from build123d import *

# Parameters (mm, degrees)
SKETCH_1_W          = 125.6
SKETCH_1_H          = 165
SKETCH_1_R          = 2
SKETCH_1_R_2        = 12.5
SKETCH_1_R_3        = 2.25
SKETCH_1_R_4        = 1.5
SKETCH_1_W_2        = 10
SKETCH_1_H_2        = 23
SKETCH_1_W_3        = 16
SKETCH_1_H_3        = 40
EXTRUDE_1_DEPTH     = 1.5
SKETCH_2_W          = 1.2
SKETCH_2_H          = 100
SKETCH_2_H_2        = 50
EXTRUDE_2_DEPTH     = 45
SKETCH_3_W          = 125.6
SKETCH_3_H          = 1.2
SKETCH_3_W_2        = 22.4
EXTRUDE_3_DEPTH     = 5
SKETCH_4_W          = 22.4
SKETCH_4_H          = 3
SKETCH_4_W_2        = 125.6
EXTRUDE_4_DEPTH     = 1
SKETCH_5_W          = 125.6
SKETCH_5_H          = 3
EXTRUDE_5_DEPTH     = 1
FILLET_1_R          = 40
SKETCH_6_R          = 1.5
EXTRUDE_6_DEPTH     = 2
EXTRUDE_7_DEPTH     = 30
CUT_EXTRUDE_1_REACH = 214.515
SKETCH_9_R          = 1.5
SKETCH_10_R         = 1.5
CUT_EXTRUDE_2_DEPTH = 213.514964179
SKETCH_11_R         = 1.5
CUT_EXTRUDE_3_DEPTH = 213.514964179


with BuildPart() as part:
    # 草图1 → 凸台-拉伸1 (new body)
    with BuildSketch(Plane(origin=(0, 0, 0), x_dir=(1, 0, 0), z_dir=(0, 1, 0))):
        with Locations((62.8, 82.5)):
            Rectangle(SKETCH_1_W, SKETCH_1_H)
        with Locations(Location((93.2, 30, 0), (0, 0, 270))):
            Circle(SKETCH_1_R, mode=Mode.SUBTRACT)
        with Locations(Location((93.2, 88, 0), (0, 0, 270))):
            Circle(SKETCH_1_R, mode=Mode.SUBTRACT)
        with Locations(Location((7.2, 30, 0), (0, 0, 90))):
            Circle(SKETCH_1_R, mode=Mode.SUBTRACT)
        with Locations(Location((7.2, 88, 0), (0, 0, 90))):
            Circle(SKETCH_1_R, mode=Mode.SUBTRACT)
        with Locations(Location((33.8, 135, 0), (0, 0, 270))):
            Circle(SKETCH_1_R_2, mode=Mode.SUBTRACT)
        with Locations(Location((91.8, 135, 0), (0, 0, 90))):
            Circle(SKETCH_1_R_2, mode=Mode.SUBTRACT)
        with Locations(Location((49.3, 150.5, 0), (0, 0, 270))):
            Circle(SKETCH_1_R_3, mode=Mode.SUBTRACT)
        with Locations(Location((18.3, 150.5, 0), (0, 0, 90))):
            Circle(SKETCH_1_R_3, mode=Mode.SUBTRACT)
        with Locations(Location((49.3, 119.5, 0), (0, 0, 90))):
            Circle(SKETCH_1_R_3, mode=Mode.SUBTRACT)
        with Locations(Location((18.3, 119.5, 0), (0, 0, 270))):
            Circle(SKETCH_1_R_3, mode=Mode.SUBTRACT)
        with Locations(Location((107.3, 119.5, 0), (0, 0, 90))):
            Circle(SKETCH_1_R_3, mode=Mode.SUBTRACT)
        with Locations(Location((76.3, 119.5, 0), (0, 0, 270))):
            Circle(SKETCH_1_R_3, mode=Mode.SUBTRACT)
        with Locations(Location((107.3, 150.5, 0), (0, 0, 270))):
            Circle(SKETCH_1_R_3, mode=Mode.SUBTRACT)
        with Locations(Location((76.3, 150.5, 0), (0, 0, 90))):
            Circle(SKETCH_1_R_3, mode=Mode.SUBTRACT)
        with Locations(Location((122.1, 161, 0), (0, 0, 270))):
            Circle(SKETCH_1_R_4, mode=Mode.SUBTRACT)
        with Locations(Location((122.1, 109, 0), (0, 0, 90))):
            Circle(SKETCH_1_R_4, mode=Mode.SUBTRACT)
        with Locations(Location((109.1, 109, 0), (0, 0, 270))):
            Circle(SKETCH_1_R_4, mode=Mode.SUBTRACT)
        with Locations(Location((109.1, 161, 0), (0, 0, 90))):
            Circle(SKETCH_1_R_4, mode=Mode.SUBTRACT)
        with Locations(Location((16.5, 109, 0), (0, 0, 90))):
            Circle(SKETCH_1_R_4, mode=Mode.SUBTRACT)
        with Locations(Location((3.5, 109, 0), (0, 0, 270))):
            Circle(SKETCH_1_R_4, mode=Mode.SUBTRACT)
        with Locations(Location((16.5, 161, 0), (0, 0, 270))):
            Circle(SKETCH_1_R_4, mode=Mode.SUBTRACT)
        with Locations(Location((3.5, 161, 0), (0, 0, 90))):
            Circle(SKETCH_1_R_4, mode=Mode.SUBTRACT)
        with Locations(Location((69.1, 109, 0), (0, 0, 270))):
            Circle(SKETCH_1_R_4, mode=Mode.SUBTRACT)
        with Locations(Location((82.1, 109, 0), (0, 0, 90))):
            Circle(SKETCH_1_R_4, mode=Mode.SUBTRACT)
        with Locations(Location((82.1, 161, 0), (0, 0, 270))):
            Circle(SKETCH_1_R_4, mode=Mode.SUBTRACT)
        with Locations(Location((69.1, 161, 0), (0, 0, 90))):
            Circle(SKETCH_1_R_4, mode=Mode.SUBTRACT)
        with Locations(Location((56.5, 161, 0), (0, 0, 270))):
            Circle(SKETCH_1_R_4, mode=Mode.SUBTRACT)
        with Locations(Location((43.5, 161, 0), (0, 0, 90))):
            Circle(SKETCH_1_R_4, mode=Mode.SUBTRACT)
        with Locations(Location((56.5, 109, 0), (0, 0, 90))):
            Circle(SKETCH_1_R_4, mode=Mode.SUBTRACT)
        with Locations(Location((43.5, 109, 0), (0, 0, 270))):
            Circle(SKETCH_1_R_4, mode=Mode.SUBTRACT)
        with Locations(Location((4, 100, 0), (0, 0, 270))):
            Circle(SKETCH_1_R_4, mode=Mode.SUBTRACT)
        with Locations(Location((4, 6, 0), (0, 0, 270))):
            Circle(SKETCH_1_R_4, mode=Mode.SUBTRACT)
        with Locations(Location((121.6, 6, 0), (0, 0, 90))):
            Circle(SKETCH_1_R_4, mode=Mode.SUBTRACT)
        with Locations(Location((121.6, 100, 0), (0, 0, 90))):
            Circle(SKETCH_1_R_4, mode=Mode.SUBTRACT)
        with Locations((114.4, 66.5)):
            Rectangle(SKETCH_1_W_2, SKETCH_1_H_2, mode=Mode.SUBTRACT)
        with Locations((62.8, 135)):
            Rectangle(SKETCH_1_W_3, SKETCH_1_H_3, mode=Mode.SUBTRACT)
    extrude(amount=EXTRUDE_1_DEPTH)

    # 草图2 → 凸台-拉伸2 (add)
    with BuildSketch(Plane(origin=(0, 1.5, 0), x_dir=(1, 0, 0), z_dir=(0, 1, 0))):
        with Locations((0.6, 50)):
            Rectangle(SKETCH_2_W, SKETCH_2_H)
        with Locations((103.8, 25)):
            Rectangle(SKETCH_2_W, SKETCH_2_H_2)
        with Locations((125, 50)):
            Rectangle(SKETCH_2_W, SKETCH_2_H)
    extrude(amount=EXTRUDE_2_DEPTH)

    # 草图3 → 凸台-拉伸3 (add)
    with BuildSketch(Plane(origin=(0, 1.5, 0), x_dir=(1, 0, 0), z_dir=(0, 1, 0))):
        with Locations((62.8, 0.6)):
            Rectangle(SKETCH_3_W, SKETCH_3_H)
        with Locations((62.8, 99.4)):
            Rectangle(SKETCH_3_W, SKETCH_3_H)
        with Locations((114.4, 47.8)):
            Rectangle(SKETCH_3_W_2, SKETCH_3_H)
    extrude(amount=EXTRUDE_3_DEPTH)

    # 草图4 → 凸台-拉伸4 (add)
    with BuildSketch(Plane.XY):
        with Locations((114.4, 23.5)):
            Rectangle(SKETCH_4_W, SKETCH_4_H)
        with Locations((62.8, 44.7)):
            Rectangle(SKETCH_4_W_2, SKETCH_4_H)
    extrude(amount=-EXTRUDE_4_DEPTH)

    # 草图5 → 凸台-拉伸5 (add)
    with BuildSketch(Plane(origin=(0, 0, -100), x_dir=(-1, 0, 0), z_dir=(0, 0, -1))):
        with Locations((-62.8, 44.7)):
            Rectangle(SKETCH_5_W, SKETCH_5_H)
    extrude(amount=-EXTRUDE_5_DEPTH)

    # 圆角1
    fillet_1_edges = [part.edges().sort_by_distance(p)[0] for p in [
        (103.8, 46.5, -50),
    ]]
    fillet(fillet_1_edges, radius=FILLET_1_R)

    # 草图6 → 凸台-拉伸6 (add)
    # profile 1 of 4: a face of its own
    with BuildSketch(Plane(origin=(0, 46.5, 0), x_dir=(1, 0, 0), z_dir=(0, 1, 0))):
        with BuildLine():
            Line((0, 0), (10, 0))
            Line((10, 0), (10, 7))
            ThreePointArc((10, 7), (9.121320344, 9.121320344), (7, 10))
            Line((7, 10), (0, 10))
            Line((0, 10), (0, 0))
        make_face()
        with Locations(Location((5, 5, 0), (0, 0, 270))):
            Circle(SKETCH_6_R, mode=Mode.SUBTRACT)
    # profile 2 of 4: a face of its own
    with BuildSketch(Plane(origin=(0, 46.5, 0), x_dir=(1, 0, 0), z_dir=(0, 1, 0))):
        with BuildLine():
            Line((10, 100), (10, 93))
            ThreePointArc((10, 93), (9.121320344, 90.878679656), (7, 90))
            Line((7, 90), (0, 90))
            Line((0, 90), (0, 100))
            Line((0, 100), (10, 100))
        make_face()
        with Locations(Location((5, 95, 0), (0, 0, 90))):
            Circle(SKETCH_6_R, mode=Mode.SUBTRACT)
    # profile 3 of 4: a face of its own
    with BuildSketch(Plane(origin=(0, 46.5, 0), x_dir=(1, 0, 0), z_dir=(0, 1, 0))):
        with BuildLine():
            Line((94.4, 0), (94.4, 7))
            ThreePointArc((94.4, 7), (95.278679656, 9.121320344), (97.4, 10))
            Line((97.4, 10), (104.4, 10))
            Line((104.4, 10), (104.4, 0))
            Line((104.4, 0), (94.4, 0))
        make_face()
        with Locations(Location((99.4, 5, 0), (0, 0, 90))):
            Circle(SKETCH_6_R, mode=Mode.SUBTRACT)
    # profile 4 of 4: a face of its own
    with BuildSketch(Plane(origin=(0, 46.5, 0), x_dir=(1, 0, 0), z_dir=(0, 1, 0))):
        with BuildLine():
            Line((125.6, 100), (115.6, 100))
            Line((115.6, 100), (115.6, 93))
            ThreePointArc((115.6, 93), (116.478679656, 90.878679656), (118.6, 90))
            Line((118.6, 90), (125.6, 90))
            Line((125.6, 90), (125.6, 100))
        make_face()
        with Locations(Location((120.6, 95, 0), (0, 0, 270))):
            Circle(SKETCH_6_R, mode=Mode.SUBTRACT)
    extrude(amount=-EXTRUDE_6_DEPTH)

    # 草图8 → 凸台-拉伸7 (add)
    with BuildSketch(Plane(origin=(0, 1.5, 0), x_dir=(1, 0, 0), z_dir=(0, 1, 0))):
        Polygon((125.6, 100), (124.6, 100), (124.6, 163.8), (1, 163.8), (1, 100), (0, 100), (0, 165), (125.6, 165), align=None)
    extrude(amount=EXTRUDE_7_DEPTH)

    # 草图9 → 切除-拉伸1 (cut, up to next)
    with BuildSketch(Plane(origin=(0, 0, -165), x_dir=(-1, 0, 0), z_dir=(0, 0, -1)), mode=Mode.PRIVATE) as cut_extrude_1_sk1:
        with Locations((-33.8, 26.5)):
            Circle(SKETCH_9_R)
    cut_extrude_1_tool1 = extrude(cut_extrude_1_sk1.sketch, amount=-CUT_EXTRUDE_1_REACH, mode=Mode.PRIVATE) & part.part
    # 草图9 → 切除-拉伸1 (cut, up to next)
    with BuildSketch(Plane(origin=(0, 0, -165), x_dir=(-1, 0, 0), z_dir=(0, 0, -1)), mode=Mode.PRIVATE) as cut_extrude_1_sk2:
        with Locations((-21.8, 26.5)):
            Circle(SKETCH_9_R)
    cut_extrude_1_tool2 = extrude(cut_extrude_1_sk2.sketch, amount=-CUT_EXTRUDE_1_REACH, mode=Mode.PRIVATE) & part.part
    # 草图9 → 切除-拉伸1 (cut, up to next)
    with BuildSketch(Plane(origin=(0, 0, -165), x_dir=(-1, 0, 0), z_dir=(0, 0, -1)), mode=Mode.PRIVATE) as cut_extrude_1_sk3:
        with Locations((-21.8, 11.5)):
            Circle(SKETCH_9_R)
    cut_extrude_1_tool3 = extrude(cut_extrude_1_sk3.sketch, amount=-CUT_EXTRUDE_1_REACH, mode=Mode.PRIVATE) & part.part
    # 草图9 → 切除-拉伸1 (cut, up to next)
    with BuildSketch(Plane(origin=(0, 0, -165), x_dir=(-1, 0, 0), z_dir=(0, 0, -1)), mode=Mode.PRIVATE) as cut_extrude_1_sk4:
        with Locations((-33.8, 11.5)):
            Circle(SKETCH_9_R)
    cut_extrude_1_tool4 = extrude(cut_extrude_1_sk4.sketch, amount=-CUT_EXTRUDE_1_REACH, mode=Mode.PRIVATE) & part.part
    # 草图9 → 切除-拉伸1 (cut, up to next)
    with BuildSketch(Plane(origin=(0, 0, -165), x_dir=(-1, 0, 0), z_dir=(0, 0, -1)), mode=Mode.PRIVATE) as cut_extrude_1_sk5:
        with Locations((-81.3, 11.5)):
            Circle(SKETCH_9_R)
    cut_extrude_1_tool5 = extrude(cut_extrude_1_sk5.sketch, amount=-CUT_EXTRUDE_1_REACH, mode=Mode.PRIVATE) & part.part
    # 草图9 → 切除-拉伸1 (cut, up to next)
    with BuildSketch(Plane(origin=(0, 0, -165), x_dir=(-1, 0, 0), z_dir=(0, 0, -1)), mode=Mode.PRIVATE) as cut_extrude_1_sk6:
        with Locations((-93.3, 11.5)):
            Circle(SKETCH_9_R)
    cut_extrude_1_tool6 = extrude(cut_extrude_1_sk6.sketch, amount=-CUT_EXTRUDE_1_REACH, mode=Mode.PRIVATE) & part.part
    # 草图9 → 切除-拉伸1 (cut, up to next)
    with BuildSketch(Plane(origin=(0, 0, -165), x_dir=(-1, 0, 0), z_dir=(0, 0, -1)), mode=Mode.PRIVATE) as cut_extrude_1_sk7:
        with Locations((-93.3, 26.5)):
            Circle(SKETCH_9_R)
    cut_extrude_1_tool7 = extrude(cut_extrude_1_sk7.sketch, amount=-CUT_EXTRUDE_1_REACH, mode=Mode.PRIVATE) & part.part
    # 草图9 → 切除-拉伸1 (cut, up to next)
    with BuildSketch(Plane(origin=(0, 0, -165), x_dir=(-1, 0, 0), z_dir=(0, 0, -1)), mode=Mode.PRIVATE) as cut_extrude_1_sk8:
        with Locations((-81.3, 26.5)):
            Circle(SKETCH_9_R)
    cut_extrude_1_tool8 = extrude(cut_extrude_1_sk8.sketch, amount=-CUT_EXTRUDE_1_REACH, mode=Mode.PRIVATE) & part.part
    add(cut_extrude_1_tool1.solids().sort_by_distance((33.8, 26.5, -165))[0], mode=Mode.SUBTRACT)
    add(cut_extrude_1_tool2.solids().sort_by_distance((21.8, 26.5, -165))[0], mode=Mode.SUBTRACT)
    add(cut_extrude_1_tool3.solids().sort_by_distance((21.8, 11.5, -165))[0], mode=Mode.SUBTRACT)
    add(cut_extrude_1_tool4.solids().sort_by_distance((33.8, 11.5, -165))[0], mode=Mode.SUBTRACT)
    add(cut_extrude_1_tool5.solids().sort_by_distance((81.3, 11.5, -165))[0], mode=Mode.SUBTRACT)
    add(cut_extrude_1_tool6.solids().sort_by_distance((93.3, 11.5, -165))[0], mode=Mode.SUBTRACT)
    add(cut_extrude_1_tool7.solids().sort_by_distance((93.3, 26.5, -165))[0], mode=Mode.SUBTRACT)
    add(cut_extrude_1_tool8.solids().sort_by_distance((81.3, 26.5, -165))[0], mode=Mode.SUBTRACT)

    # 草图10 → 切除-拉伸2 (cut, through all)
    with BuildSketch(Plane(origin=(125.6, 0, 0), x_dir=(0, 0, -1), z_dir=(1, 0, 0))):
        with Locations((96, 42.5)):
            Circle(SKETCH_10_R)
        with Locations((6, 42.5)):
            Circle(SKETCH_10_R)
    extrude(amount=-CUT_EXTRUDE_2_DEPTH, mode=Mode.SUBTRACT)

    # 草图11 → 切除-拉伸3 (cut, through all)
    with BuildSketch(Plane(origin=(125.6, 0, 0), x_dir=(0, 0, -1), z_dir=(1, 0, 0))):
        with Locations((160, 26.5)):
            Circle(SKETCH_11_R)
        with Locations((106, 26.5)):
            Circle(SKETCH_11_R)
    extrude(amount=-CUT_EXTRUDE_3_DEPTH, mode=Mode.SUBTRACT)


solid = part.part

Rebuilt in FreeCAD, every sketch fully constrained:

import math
import FreeCAD as App
import Part
import Sketcher

V = App.Vector


def edges_at(feature, points):
    """Names of the edges that pass closest to the given points."""
    edges = feature.Shape.Edges
    near = lambda p: min(range(len(edges)), key=lambda i: edges[i].distToShape(Part.Vertex(*p))[0])
    return sorted({f"Edge{near(p) + 1}" for p in points})


def add_polygon(sketch, points):
    """Adds a closed chain of lines whose ends are joined by coincident constraints."""
    first, n = sketch.GeometryCount, len(points)
    for a, b in zip(points, points[1:] + points[:1]):
        sketch.addGeometry(Part.LineSegment(App.Vector(*a, 0), App.Vector(*b, 0)), False)
    for i in range(n):
        sketch.addConstraint(Sketcher.Constraint("Coincident", first + i, 2, first + (i + 1) % n, 1))

doc = App.newDocument("Part")
params = doc.addObject("Spreadsheet::Sheet", "Params")
for row, (alias, value) in enumerate([
    ("sketch1_diameter", "3 mm"),
    ("sketch1_diameter2", "4 mm"),
    ("sketch1_diameter3", "25 mm"),
    ("sketch1_diameter4", "4.5 mm"),
    ("sketch1_width", "10 mm"),
    ("pad1_length", "1.5 mm"),
    ("sketch2_height", "100 mm"),
    ("sketch2_height2", "50 mm"),
    ("sketch2_width", "1.2 mm"),
    ("pad2_length", "45 mm"),
    ("sketch3_width", "125.6 mm"),
    ("sketch3_width2", "22.4 mm"),
    ("sketch3_height", "1.2 mm"),
    ("pad3_length", "5 mm"),
    ("sketch4_height", "3 mm"),
    ("sketch4_width", "22.4 mm"),
    ("sketch4_width2", "125.6 mm"),
    ("pad4_length", "1 mm"),
    ("sketch5_height", "3 mm"),
    ("sketch5_width", "125.6 mm"),
    ("pad5_length", "1 mm"),
    ("fillet_radius", "40 mm"),
    ("sketch6_diameter", "3 mm"),
    ("sketch6_radius", "3 mm"),
    ("sketch6_width", "10 mm"),
    ("pad6_length", "2 mm"),
    ("sketch7_width", "1 mm"),
    ("sketch7_height", "65 mm"),
    ("sketch7_width2", "125.6 mm"),
    ("sketch7_height2", "63.8 mm"),
    ("pad7_length", "30 mm"),
    ("sketch8_diameter", "3 mm"),
    ("sketch9_diameter", "3 mm"),
    ("sketch10_diameter", "3 mm"),
    ("sketch11_diameter", "3 mm"),
    ("sketch12_diameter", "3 mm"),
    ("sketch13_diameter", "3 mm"),
    ("sketch14_diameter", "3 mm"),
    ("sketch15_diameter", "3 mm"),
    ("sketch16_diameter", "3 mm"),
    ("sketch17_diameter", "3 mm"),
], start=1):
    params.set(f"A{row}", alias)
    params.set(f"B{row}", "=" + value)
    params.setAlias(f"B{row}", alias)

body = doc.addObject("PartDesign::Body", "Body")

sketch1 = body.newObject("Sketcher::SketchObject", "Sketch")
sketch1.AttachmentSupport = (doc.getObject("XZ_Plane"), [""])
sketch1.MapMode = "FlatFace"
add_polygon(sketch1, [(0, -165), (0, 0), (125.6, 0), (125.6, -165)])
sketch1.addGeometry(Part.Circle(V(4, -6, 0), V(0, 0, 1), 1.5), False)
sketch1.addGeometry(Part.Circle(V(7.2, -30, 0), V(0, 0, 1), 2), False)
sketch1.addGeometry(Part.Circle(V(121.6, -6, 0), V(0, 0, 1), 1.5), False)
sketch1.addGeometry(Part.Circle(V(93.2, -30, 0), V(0, 0, 1), 2), False)
add_polygon(sketch1, [(119.4, -55), (109.4, -55), (109.4, -78), (119.4, -78)])
sketch1.addGeometry(Part.Circle(V(7.2, -88, 0), V(0, 0, 1), 2), False)
sketch1.addGeometry(Part.Circle(V(4, -100, 0), V(0, 0, 1), 1.5), False)
sketch1.addGeometry(Part.Circle(V(3.5, -109, 0), V(0, 0, 1), 1.5), False)
sketch1.addGeometry(Part.Circle(V(16.5, -109, 0), V(0, 0, 1), 1.5), False)
sketch1.addGeometry(Part.Circle(V(18.3, -119.5, 0), V(0, 0, 1), 2.2), False)
sketch1.addGeometry(Part.Circle(V(43.5, -109, 0), V(0, 0, 1), 1.5), False)
sketch1.addGeometry(Part.Circle(V(56.5, -109, 0), V(0, 0, 1), 1.5), False)
sketch1.addGeometry(Part.Circle(V(49.3, -119.5, 0), V(0, 0, 1), 2.2), False)
sketch1.addGeometry(Part.Circle(V(3.5, -161, 0), V(0, 0, 1), 1.5), False)
sketch1.addGeometry(Part.Circle(V(16.5, -161, 0), V(0, 0, 1), 1.5), False)
sketch1.addGeometry(Part.Circle(V(18.3, -150.5, 0), V(0, 0, 1), 2.2), False)
sketch1.addGeometry(Part.Circle(V(33.8, -135, 0), V(0, 0, 1), 12.5), False)
add_polygon(sketch1, [(70.8, -115), (54.8, -115), (54.8, -155), (70.8, -155)])
sketch1.addGeometry(Part.Circle(V(43.5, -161, 0), V(0, 0, 1), 1.5), False)
sketch1.addGeometry(Part.Circle(V(49.3, -150.5, 0), V(0, 0, 1), 2.2), False)
sketch1.addGeometry(Part.Circle(V(56.5, -161, 0), V(0, 0, 1), 1.5), False)
sketch1.addGeometry(Part.Circle(V(69.1, -109, 0), V(0, 0, 1), 1.5), False)
sketch1.addGeometry(Part.Circle(V(76.3, -119.5, 0), V(0, 0, 1), 2.2), False)
sketch1.addGeometry(Part.Circle(V(82.1, -109, 0), V(0, 0, 1), 1.5), False)
sketch1.addGeometry(Part.Circle(V(93.2, -88, 0), V(0, 0, 1), 2), False)
sketch1.addGeometry(Part.Circle(V(121.6, -100, 0), V(0, 0, 1), 1.5), False)
sketch1.addGeometry(Part.Circle(V(107.3, -119.5, 0), V(0, 0, 1), 2.2), False)
sketch1.addGeometry(Part.Circle(V(109.1, -109, 0), V(0, 0, 1), 1.5), False)
sketch1.addGeometry(Part.Circle(V(122.1, -109, 0), V(0, 0, 1), 1.5), False)
sketch1.addGeometry(Part.Circle(V(91.8, -135, 0), V(0, 0, 1), 12.5), False)
sketch1.addGeometry(Part.Circle(V(76.3, -150.5, 0), V(0, 0, 1), 2.2), False)
sketch1.addGeometry(Part.Circle(V(69.1, -161, 0), V(0, 0, 1), 1.5), False)
sketch1.addGeometry(Part.Circle(V(82.1, -161, 0), V(0, 0, 1), 1.5), False)
sketch1.addGeometry(Part.Circle(V(107.3, -150.5, 0), V(0, 0, 1), 2.2), False)
sketch1.addGeometry(Part.Circle(V(109.1, -161, 0), V(0, 0, 1), 1.5), False)
sketch1.addGeometry(Part.Circle(V(122.1, -161, 0), V(0, 0, 1), 1.5), False)
sketch1.addConstraint(Sketcher.Constraint("Vertical", 0))
sketch1.addConstraint(Sketcher.Constraint("Horizontal", 1))
sketch1.addConstraint(Sketcher.Constraint("Vertical", 2))
sketch1.addConstraint(Sketcher.Constraint("Horizontal", 3))
sketch1.addConstraint(Sketcher.Constraint("Horizontal", 8))
sketch1.addConstraint(Sketcher.Constraint("Vertical", 9))
sketch1.addConstraint(Sketcher.Constraint("Horizontal", 10))
sketch1.addConstraint(Sketcher.Constraint("Vertical", 11))
sketch1.addConstraint(Sketcher.Constraint("Horizontal", 24))
sketch1.addConstraint(Sketcher.Constraint("Vertical", 25))
sketch1.addConstraint(Sketcher.Constraint("Horizontal", 26))
sketch1.addConstraint(Sketcher.Constraint("Vertical", 27))
sketch1.addConstraint(Sketcher.Constraint("Coincident", 0, 2, -1, 1))
sketch1.addConstraint(Sketcher.Constraint("Equal", 4, 6))
sketch1.addConstraint(Sketcher.Constraint("Equal", 5, 7))
sketch1.addConstraint(Sketcher.Constraint("Equal", 7, 12))
sketch1.addConstraint(Sketcher.Constraint("Equal", 6, 13))
sketch1.addConstraint(Sketcher.Constraint("Equal", 13, 14))
sketch1.addConstraint(Sketcher.Constraint("Equal", 14, 15))
sketch1.addConstraint(Sketcher.Constraint("Equal", 15, 17))
sketch1.addConstraint(Sketcher.Constraint("Equal", 17, 18))
sketch1.addConstraint(Sketcher.Constraint("Equal", 16, 19))
sketch1.addConstraint(Sketcher.Constraint("Equal", 18, 20))
sketch1.addConstraint(Sketcher.Constraint("Equal", 20, 21))
sketch1.addConstraint(Sketcher.Constraint("Equal", 19, 22))
sketch1.addConstraint(Sketcher.Constraint("Equal", 21, 28))
sketch1.addConstraint(Sketcher.Constraint("Equal", 22, 29))
sketch1.addConstraint(Sketcher.Constraint("Equal", 28, 30))
sketch1.addConstraint(Sketcher.Constraint("Equal", 30, 31))
sketch1.addConstraint(Sketcher.Constraint("Equal", 29, 32))
sketch1.addConstraint(Sketcher.Constraint("Equal", 31, 33))
sketch1.addConstraint(Sketcher.Constraint("Equal", 12, 34))
sketch1.addConstraint(Sketcher.Constraint("Equal", 33, 35))
sketch1.addConstraint(Sketcher.Constraint("Equal", 32, 36))
sketch1.addConstraint(Sketcher.Constraint("Equal", 35, 37))
sketch1.addConstraint(Sketcher.Constraint("Equal", 37, 38))
sketch1.addConstraint(Sketcher.Constraint("Equal", 23, 39))
sketch1.addConstraint(Sketcher.Constraint("Equal", 36, 40))
sketch1.addConstraint(Sketcher.Constraint("Equal", 38, 41))
sketch1.addConstraint(Sketcher.Constraint("Equal", 41, 42))
sketch1.addConstraint(Sketcher.Constraint("Equal", 40, 43))
sketch1.addConstraint(Sketcher.Constraint("Equal", 42, 44))
sketch1.addConstraint(Sketcher.Constraint("Equal", 44, 45))
sketch1.addConstraint(Sketcher.Constraint("Horizontal", 4, 3, 6, 3))
sketch1.addConstraint(Sketcher.Constraint("Horizontal", 5, 3, 7, 3))
sketch1.addConstraint(Sketcher.Constraint("Horizontal", 14, 3, 15, 3))
sketch1.addConstraint(Sketcher.Constraint("Horizontal", 15, 3, 17, 3))
sketch1.addConstraint(Sketcher.Constraint("Horizontal", 17, 3, 18, 3))
sketch1.addConstraint(Sketcher.Constraint("Horizontal", 16, 3, 19, 3))
sketch1.addConstraint(Sketcher.Constraint("Horizontal", 20, 3, 21, 3))
sketch1.addConstraint(Sketcher.Constraint("Horizontal", 21, 3, 28, 3))
sketch1.addConstraint(Sketcher.Constraint("Horizontal", 22, 3, 29, 3))
sketch1.addConstraint(Sketcher.Constraint("Horizontal", 28, 3, 30, 3))
sketch1.addConstraint(Sketcher.Constraint("Horizontal", 18, 3, 31, 3))
sketch1.addConstraint(Sketcher.Constraint("Horizontal", 19, 3, 32, 3))
sketch1.addConstraint(Sketcher.Constraint("Horizontal", 31, 3, 33, 3))
sketch1.addConstraint(Sketcher.Constraint("Horizontal", 12, 3, 34, 3))
sketch1.addConstraint(Sketcher.Constraint("Horizontal", 13, 3, 35, 3))
sketch1.addConstraint(Sketcher.Constraint("Horizontal", 32, 3, 36, 3))
sketch1.addConstraint(Sketcher.Constraint("Horizontal", 33, 3, 37, 3))
sketch1.addConstraint(Sketcher.Constraint("Horizontal", 37, 3, 38, 3))
sketch1.addConstraint(Sketcher.Constraint("Horizontal", 23, 3, 39, 3))
sketch1.addConstraint(Sketcher.Constraint("Horizontal", 29, 3, 40, 3))
sketch1.addConstraint(Sketcher.Constraint("Horizontal", 30, 3, 41, 3))
sketch1.addConstraint(Sketcher.Constraint("Horizontal", 41, 3, 42, 3))
sketch1.addConstraint(Sketcher.Constraint("Horizontal", 40, 3, 43, 3))
sketch1.addConstraint(Sketcher.Constraint("Horizontal", 42, 3, 44, 3))
sketch1.addConstraint(Sketcher.Constraint("Horizontal", 44, 3, 45, 3))
sketch1.addConstraint(Sketcher.Constraint("Vertical", 5, 3, 12, 3))
sketch1.addConstraint(Sketcher.Constraint("Vertical", 4, 3, 13, 3))
sketch1.addConstraint(Sketcher.Constraint("Vertical", 14, 3, 20, 3))
sketch1.addConstraint(Sketcher.Constraint("Vertical", 15, 3, 21, 3))
sketch1.addConstraint(Sketcher.Constraint("Vertical", 16, 3, 22, 3))
sketch1.addConstraint(Sketcher.Constraint("Vertical", 17, 3, 28, 3))
sketch1.addConstraint(Sketcher.Constraint("Vertical", 19, 3, 29, 3))
sketch1.addConstraint(Sketcher.Constraint("Vertical", 18, 3, 30, 3))
sketch1.addConstraint(Sketcher.Constraint("Vertical", 7, 3, 34, 3))
sketch1.addConstraint(Sketcher.Constraint("Vertical", 6, 3, 35, 3))
sketch1.addConstraint(Sketcher.Constraint("Vertical", 32, 3, 40, 3))
sketch1.addConstraint(Sketcher.Constraint("Vertical", 31, 3, 41, 3))
sketch1.addConstraint(Sketcher.Constraint("Vertical", 33, 3, 42, 3))
sketch1.addConstraint(Sketcher.Constraint("Vertical", 36, 3, 43, 3))
sketch1.addConstraint(Sketcher.Constraint("Vertical", 37, 3, 44, 3))
sketch1.addConstraint(Sketcher.Constraint("Vertical", 38, 3, 45, 3))
sketch1.addConstraint(Sketcher.Constraint("Diameter", 4, 3.0))
sketch1.addConstraint(Sketcher.Constraint("Diameter", 5, 4.0))
sketch1.addConstraint(Sketcher.Constraint("Diameter", 23, 25.0))
sketch1.addConstraint(Sketcher.Constraint("Diameter", 16, 4.5))
sketch1.addConstraint(Sketcher.Constraint("DistanceX", 8, 2, 8, 1, 10.0))
sketch1.addConstraint(Sketcher.Constraint("DistanceX", 24, 2, 24, 1, 16.0))
sketch1.addConstraint(Sketcher.Constraint("DistanceY", 0, 1, 0, 2, 165.0))
sketch1.addConstraint(Sketcher.Constraint("DistanceY", 9, 2, 9, 1, 23.0))
sketch1.addConstraint(Sketcher.Constraint("DistanceY", 25, 2, 25, 1, 40.0))
sketch1.addConstraint(Sketcher.Constraint("DistanceX", 1, 1, 1, 2, 125.6))
sketch1.addConstraint(Sketcher.Constraint("DistanceX", -1, 1, 4, 3, 4.0))
sketch1.addConstraint(Sketcher.Constraint("DistanceY", 4, 3, -1, 1, 6.0))
sketch1.addConstraint(Sketcher.Constraint("DistanceY", 5, 3, -1, 1, 30.0))
sketch1.addConstraint(Sketcher.Constraint("DistanceY", 12, 3, -1, 1, 88.0))
sketch1.addConstraint(Sketcher.Constraint("DistanceY", 13, 3, -1, 1, 100.0))
sketch1.addConstraint(Sketcher.Constraint("DistanceY", 14, 3, -1, 1, 109.0))
sketch1.addConstraint(Sketcher.Constraint("DistanceY", 20, 3, -1, 1, 161.0))
sketch1.addConstraint(Sketcher.Constraint("DistanceY", 23, 3, -1, 1, 135.0))
sketch1.addConstraint(Sketcher.Constraint("DistanceY", 8, 2, -1, 1, 55.0))
sketch1.addConstraint(Sketcher.Constraint("DistanceY", 24, 2, -1, 1, 115.0))
sketch1.addConstraint(Sketcher.Constraint("DistanceX", 5, 3, 7, 3, 86.0))
sketch1.addConstraint(Sketcher.Constraint("DistanceX", 14, 3, 15, 3, 13.0))
sketch1.addConstraint(Sketcher.Constraint("DistanceX", 15, 3, 17, 3, 27.0))
sketch1.addConstraint(Sketcher.Constraint("DistanceX", 17, 3, 18, 3, 13.0))
sketch1.addConstraint(Sketcher.Constraint("DistanceX", 16, 3, 19, 3, 31.0))
sketch1.addConstraint(Sketcher.Constraint("DistanceY", 22, 3, 16, 3, 31.0))
sketch1.addConstraint(Sketcher.Constraint("DistanceX", 19, 3, 32, 3, 27.0))
sketch1.addConstraint(Sketcher.Constraint("DistanceX", 31, 3, 33, 3, 13.0))
sketch1.addConstraint(Sketcher.Constraint("DistanceX", 32, 3, 36, 3, 31.0))
sketch1.addConstraint(Sketcher.Constraint("DistanceX", 33, 3, 37, 3, 27.0))
sketch1.addConstraint(Sketcher.Constraint("DistanceX", 37, 3, 38, 3, 13.0))
sketch1.addConstraint(Sketcher.Constraint("DistanceX", 6, 3, 1, 2, 4.0))
sketch1.addConstraint(Sketcher.Constraint("DistanceX", -1, 1, 5, 3, 7.2))
sketch1.addConstraint(Sketcher.Constraint("DistanceX", -1, 1, 14, 3, 3.5))
sketch1.addConstraint(Sketcher.Constraint("DistanceX", -1, 1, 16, 3, 18.3))
sketch1.addConstraint(Sketcher.Constraint("DistanceY", 16, 3, -1, 1, 119.5))
sketch1.addConstraint(Sketcher.Constraint("DistanceX", -1, 1, 23, 3, 33.8))
sketch1.addConstraint(Sketcher.Constraint("DistanceX", -1, 1, 31, 3, 69.1))
sketch1.addConstraint(Sketcher.Constraint("DistanceX", -1, 1, 39, 3, 91.8))
sketch1.addConstraint(Sketcher.Constraint("DistanceX", -1, 1, 8, 2, 109.4))
sketch1.addConstraint(Sketcher.Constraint("DistanceX", -1, 1, 24, 2, 54.8))
sketch1.setExpression("Constraints[96]", "Params.sketch1_diameter")
sketch1.setExpression("Constraints[97]", "Params.sketch1_diameter2")
sketch1.setExpression("Constraints[98]", "Params.sketch1_diameter3")
sketch1.setExpression("Constraints[99]", "Params.sketch1_diameter4")
sketch1.setExpression("Constraints[100]", "Params.sketch1_width")
pad1 = body.newObject("PartDesign::Pad", "Pad")
pad1.Profile = sketch1
pad1.setExpression("Length", "Params.pad1_length")
pad1.Reversed = True

sketch2 = body.newObject("Sketcher::SketchObject", "Sketch001")
sketch2.AttachmentSupport = (doc.getObject("XZ_Plane"), [""])
sketch2.MapMode = "FlatFace"
sketch2.AttachmentOffset = App.Placement(V(0, 0, -1.5), App.Rotation())
add_polygon(sketch2, [(0, -100), (0, 0), (1.2, 0), (1.2, -100)])
add_polygon(sketch2, [(103.2, -50), (103.2, 0), (104.4, 0), (104.4, -50)])
add_polygon(sketch2, [(124.4, -100), (124.4, 0), (125.6, 0), (125.6, -100)])
sketch2.addConstraint(Sketcher.Constraint("Vertical", 0))
sketch2.addConstraint(Sketcher.Constraint("Horizontal", 1))
sketch2.addConstraint(Sketcher.Constraint("Vertical", 2))
sketch2.addConstraint(Sketcher.Constraint("Horizontal", 3))
sketch2.addConstraint(Sketcher.Constraint("Vertical", 4))
sketch2.addConstraint(Sketcher.Constraint("Horizontal", 5))
sketch2.addConstraint(Sketcher.Constraint("Vertical", 6))
sketch2.addConstraint(Sketcher.Constraint("Horizontal", 7))
sketch2.addConstraint(Sketcher.Constraint("Vertical", 8))
sketch2.addConstraint(Sketcher.Constraint("Horizontal", 9))
sketch2.addConstraint(Sketcher.Constraint("Vertical", 10))
sketch2.addConstraint(Sketcher.Constraint("Horizontal", 11))
sketch2.addConstraint(Sketcher.Constraint("Coincident", 0, 2, -1, 1))
sketch2.addConstraint(Sketcher.Constraint("PointOnObject", 4, 2, -1))
sketch2.addConstraint(Sketcher.Constraint("PointOnObject", 8, 2, -1))
sketch2.addConstraint(Sketcher.Constraint("Horizontal", 3, 2, 10, 2))
sketch2.addConstraint(Sketcher.Constraint("Equal", 3, 5))
sketch2.addConstraint(Sketcher.Constraint("Equal", 7, 9))
sketch2.addConstraint(Sketcher.Constraint("DistanceY", 0, 1, 0, 2, 100.0))
sketch2.addConstraint(Sketcher.Constraint("DistanceY", 4, 1, 4, 2, 50.0))
sketch2.addConstraint(Sketcher.Constraint("DistanceX", 1, 1, 1, 2, 1.2))
sketch2.addConstraint(Sketcher.Constraint("DistanceX", 1, 2, 4, 2, 102.0))
sketch2.addConstraint(Sketcher.Constraint("DistanceX", 5, 2, 8, 2, 20.0))
sketch2.setExpression("Constraints[30]", "Params.sketch2_height")
sketch2.setExpression("Constraints[31]", "Params.sketch2_height2")
sketch2.setExpression("Constraints[32]", "Params.sketch2_width")
pad2 = body.newObject("PartDesign::Pad", "Pad001")
pad2.Profile = sketch2
pad2.setExpression("Length", "Params.pad2_length")
pad2.Reversed = True

sketch3 = body.newObject("Sketcher::SketchObject", "Sketch002")
sketch3.AttachmentSupport = (doc.getObject("XZ_Plane"), [""])
sketch3.MapMode = "FlatFace"
sketch3.AttachmentOffset = App.Placement(V(0, 0, -1.5), App.Rotation())
add_polygon(sketch3, [(0, -1.2), (0, 0), (125.6, 0), (125.6, -1.2)])
add_polygon(sketch3, [(0, -100), (0, -98.8), (125.6, -98.8), (125.6, -100)])
add_polygon(sketch3, [(103.2, -48.4), (103.2, -47.2), (125.6, -47.2), (125.6, -48.4)])
sketch3.addConstraint(Sketcher.Constraint("Vertical", 0))
sketch3.addConstraint(Sketcher.Constraint("Horizontal", 1))
sketch3.addConstraint(Sketcher.Constraint("Vertical", 2))
sketch3.addConstraint(Sketcher.Constraint("Horizontal", 3))
sketch3.addConstraint(Sketcher.Constraint("Vertical", 4))
sketch3.addConstraint(Sketcher.Constraint("Horizontal", 5))
sketch3.addConstraint(Sketcher.Constraint("Vertical", 6))
sketch3.addConstraint(Sketcher.Constraint("Horizontal", 7))
sketch3.addConstraint(Sketcher.Constraint("Vertical", 8))
sketch3.addConstraint(Sketcher.Constraint("Horizontal", 9))
sketch3.addConstraint(Sketcher.Constraint("Vertical", 10))
sketch3.addConstraint(Sketcher.Constraint("Horizontal", 11))
sketch3.addConstraint(Sketcher.Constraint("Coincident", 0, 2, -1, 1))
sketch3.addConstraint(Sketcher.Constraint("PointOnObject", 4, 2, -2))
sketch3.addConstraint(Sketcher.Constraint("Vertical", 2, 2, 5, 2))
sketch3.addConstraint(Sketcher.Constraint("Vertical", 6, 2, 9, 2))
sketch3.addConstraint(Sketcher.Constraint("Equal", 2, 4))
sketch3.addConstraint(Sketcher.Constraint("Equal", 6, 8))
sketch3.addConstraint(Sketcher.Constraint("DistanceX", 1, 1, 1, 2, 125.6))
sketch3.addConstraint(Sketcher.Constraint("DistanceX", 9, 1, 9, 2, 22.4))
sketch3.addConstraint(Sketcher.Constraint("DistanceY", 0, 1, 0, 2, 1.2))
sketch3.addConstraint(Sketcher.Constraint("DistanceY", 6, 2, -1, 1, 100.0))
sketch3.addConstraint(Sketcher.Constraint("DistanceY", 8, 2, 2, 2, 46.0))
sketch3.setExpression("Constraints[30]", "Params.sketch3_width")
sketch3.setExpression("Constraints[31]", "Params.sketch3_width2")
sketch3.setExpression("Constraints[32]", "Params.sketch3_height")
pad3 = body.newObject("PartDesign::Pad", "Pad002")
pad3.Profile = sketch3
pad3.setExpression("Length", "Params.pad3_length")
pad3.Reversed = True

sketch4 = body.newObject("Sketcher::SketchObject", "Sketch003")
sketch4.AttachmentSupport = (doc.getObject("XY_Plane"), [""])
sketch4.MapMode = "FlatFace"
add_polygon(sketch4, [(103.2, 25), (103.2, 22), (125.6, 22), (125.6, 25)])
add_polygon(sketch4, [(0, 46.2), (0, 43.2), (125.6, 43.2), (125.6, 46.2)])
sketch4.addConstraint(Sketcher.Constraint("Vertical", 0))
sketch4.addConstraint(Sketcher.Constraint("Horizontal", 1))
sketch4.addConstraint(Sketcher.Constraint("Vertical", 2))
sketch4.addConstraint(Sketcher.Constraint("Horizontal", 3))
sketch4.addConstraint(Sketcher.Constraint("Vertical", 4))
sketch4.addConstraint(Sketcher.Constraint("Horizontal", 5))
sketch4.addConstraint(Sketcher.Constraint("Vertical", 6))
sketch4.addConstraint(Sketcher.Constraint("Horizontal", 7))
sketch4.addConstraint(Sketcher.Constraint("PointOnObject", 4, 2, -2))
sketch4.addConstraint(Sketcher.Constraint("Vertical", 2, 2, 5, 2))
sketch4.addConstraint(Sketcher.Constraint("Equal", 2, 4))
sketch4.addConstraint(Sketcher.Constraint("DistanceY", 0, 2, 0, 1, 3.0))
sketch4.addConstraint(Sketcher.Constraint("DistanceX", 1, 1, 1, 2, 22.4))
sketch4.addConstraint(Sketcher.Constraint("DistanceX", 5, 1, 5, 2, 125.6))
sketch4.addConstraint(Sketcher.Constraint("DistanceY", -1, 1, 0, 2, 22.0))
sketch4.addConstraint(Sketcher.Constraint("DistanceY", -1, 1, 4, 2, 43.2))
sketch4.setExpression("Constraints[19]", "Params.sketch4_height")
sketch4.setExpression("Constraints[20]", "Params.sketch4_width")
sketch4.setExpression("Constraints[21]", "Params.sketch4_width2")
pad4 = body.newObject("PartDesign::Pad", "Pad003")
pad4.Profile = sketch4
pad4.setExpression("Length", "Params.pad4_length")
pad4.Reversed = True

sketch5 = body.newObject("Sketcher::SketchObject", "Sketch004")
sketch5.AttachmentSupport = (doc.getObject("XY_Plane"), [""])
sketch5.MapMode = "FlatFace"
sketch5.AttachmentOffset = App.Placement(V(0, 0, -100), App.Rotation())
add_polygon(sketch5, [(125.6, 46.2), (125.6, 43.2), (0, 43.2), (0, 46.2)])
sketch5.addConstraint(Sketcher.Constraint("Vertical", 0))
sketch5.addConstraint(Sketcher.Constraint("Horizontal", 1))
sketch5.addConstraint(Sketcher.Constraint("Vertical", 2))
sketch5.addConstraint(Sketcher.Constraint("Horizontal", 3))
sketch5.addConstraint(Sketcher.Constraint("PointOnObject", 1, 2, -2))
sketch5.addConstraint(Sketcher.Constraint("DistanceY", 0, 2, 0, 1, 3.0))
sketch5.addConstraint(Sketcher.Constraint("DistanceX", 1, 2, 1, 1, 125.6))
sketch5.addConstraint(Sketcher.Constraint("DistanceY", -1, 1, 0, 2, 43.2))
sketch5.setExpression("Constraints[9]", "Params.sketch5_height")
sketch5.setExpression("Constraints[10]", "Params.sketch5_width")
pad5 = body.newObject("PartDesign::Pad", "Pad004")
pad5.Profile = sketch5
pad5.setExpression("Length", "Params.pad5_length")
doc.recompute()

fillet = body.newObject("PartDesign::Fillet", "Fillet")
fillet.Base = (pad5, edges_at(pad5, [(103.8, 46.5, -50)]))
fillet.setExpression("Radius", "Params.fillet_radius")

sketch6 = body.newObject("Sketcher::SketchObject", "Sketch005")
sketch6.AttachmentSupport = (doc.getObject("XZ_Plane"), [""])
sketch6.MapMode = "FlatFace"
sketch6.AttachmentOffset = App.Placement(V(0, 0, -46.5), App.Rotation())
sketch6.addGeometry(Part.LineSegment(V(0, 0, 0), V(10, 0, 0)), False)
sketch6.addGeometry(Part.LineSegment(V(10, 0, 0), V(10, -7, 0)), False)
sketch6.addGeometry(Part.ArcOfCircle(Part.Circle(V(7, -7, 0), V(0, 0, 1), 3), math.radians(-90), math.radians(0)), False)
sketch6.addGeometry(Part.LineSegment(V(7, -10, 0), V(0, -10, 0)), False)
sketch6.addGeometry(Part.LineSegment(V(0, -10, 0), V(0, 0, 0)), False)
sketch6.addGeometry(Part.Circle(V(5, -5, 0), V(0, 0, 1), 1.5), False)
sketch6.addGeometry(Part.LineSegment(V(10, -93, 0), V(10, -100, 0)), False)
sketch6.addGeometry(Part.LineSegment(V(10, -100, 0), V(0, -100, 0)), False)
sketch6.addGeometry(Part.LineSegment(V(0, -100, 0), V(0, -90, 0)), False)
sketch6.addGeometry(Part.LineSegment(V(0, -90, 0), V(7, -90, 0)), False)
sketch6.addGeometry(Part.ArcOfCircle(Part.Circle(V(7, -93, 0), V(0, 0, 1), 3), math.radians(0), math.radians(90)), False)
sketch6.addGeometry(Part.Circle(V(5, -95, 0), V(0, 0, 1), 1.5), False)
sketch6.addGeometry(Part.LineSegment(V(94.4, -7, 0), V(94.4, 0, 0)), False)
sketch6.addGeometry(Part.LineSegment(V(94.4, 0, 0), V(104.4, 0, 0)), False)
sketch6.addGeometry(Part.LineSegment(V(104.4, 0, 0), V(104.4, -10, 0)), False)
sketch6.addGeometry(Part.LineSegment(V(104.4, -10, 0), V(97.4, -10, 0)), False)
sketch6.addGeometry(Part.ArcOfCircle(Part.Circle(V(97.4, -7, 0), V(0, 0, 1), 3), math.radians(180), math.radians(270)), False)
sketch6.addGeometry(Part.Circle(V(99.4, -5, 0), V(0, 0, 1), 1.5), False)
sketch6.addGeometry(Part.LineSegment(V(125.6, -100, 0), V(115.6, -100, 0)), False)
sketch6.addGeometry(Part.LineSegment(V(115.6, -100, 0), V(115.6, -93, 0)), False)
sketch6.addGeometry(Part.ArcOfCircle(Part.Circle(V(118.6, -93, 0), V(0, 0, 1), 3), math.radians(90), math.radians(180)), False)
sketch6.addGeometry(Part.LineSegment(V(118.6, -90, 0), V(125.6, -90, 0)), False)
sketch6.addGeometry(Part.LineSegment(V(125.6, -90, 0), V(125.6, -100, 0)), False)
sketch6.addGeometry(Part.Circle(V(120.6, -95, 0), V(0, 0, 1), 1.5), False)
sketch6.addConstraint(Sketcher.Constraint("Coincident", 0, 2, 1, 1))
sketch6.addConstraint(Sketcher.Constraint("Tangent", 1, 2, 2, 2))
sketch6.addConstraint(Sketcher.Constraint("Tangent", 2, 1, 3, 1))
sketch6.addConstraint(Sketcher.Constraint("Coincident", 3, 2, 4, 1))
sketch6.addConstraint(Sketcher.Constraint("Coincident", 4, 2, 0, 1))
sketch6.addConstraint(Sketcher.Constraint("Coincident", 6, 2, 7, 1))
sketch6.addConstraint(Sketcher.Constraint("Coincident", 7, 2, 8, 1))
sketch6.addConstraint(Sketcher.Constraint("Coincident", 8, 2, 9, 1))
sketch6.addConstraint(Sketcher.Constraint("Tangent", 9, 2, 10, 2))
sketch6.addConstraint(Sketcher.Constraint("Tangent", 10, 1, 6, 1))
sketch6.addConstraint(Sketcher.Constraint("Coincident", 12, 2, 13, 1))
sketch6.addConstraint(Sketcher.Constraint("Coincident", 13, 2, 14, 1))
sketch6.addConstraint(Sketcher.Constraint("Coincident", 14, 2, 15, 1))
sketch6.addConstraint(Sketcher.Constraint("Tangent", 15, 2, 16, 2))
sketch6.addConstraint(Sketcher.Constraint("Tangent", 16, 1, 12, 1))
sketch6.addConstraint(Sketcher.Constraint("Coincident", 18, 2, 19, 1))
sketch6.addConstraint(Sketcher.Constraint("Tangent", 19, 2, 20, 2))
sketch6.addConstraint(Sketcher.Constraint("Tangent", 20, 1, 21, 1))
sketch6.addConstraint(Sketcher.Constraint("Coincident", 21, 2, 22, 1))
sketch6.addConstraint(Sketcher.Constraint("Coincident", 22, 2, 18, 1))
sketch6.addConstraint(Sketcher.Constraint("Horizontal", 0))
sketch6.addConstraint(Sketcher.Constraint("Vertical", 1))
sketch6.addConstraint(Sketcher.Constraint("Horizontal", 3))
sketch6.addConstraint(Sketcher.Constraint("Vertical", 4))
sketch6.addConstraint(Sketcher.Constraint("Vertical", 6))
sketch6.addConstraint(Sketcher.Constraint("Horizontal", 7))
sketch6.addConstraint(Sketcher.Constraint("Vertical", 8))
sketch6.addConstraint(Sketcher.Constraint("Horizontal", 9))
sketch6.addConstraint(Sketcher.Constraint("Vertical", 12))
sketch6.addConstraint(Sketcher.Constraint("Horizontal", 13))
sketch6.addConstraint(Sketcher.Constraint("Vertical", 14))
sketch6.addConstraint(Sketcher.Constraint("Horizontal", 15))
sketch6.addConstraint(Sketcher.Constraint("Horizontal", 18))
sketch6.addConstraint(Sketcher.Constraint("Vertical", 19))
sketch6.addConstraint(Sketcher.Constraint("Horizontal", 21))
sketch6.addConstraint(Sketcher.Constraint("Vertical", 22))
sketch6.addConstraint(Sketcher.Constraint("Coincident", 4, 2, -1, 1))
sketch6.addConstraint(Sketcher.Constraint("Equal", 2, 10))
sketch6.addConstraint(Sketcher.Constraint("Equal", 5, 11))
sketch6.addConstraint(Sketcher.Constraint("Equal", 10, 16))
sketch6.addConstraint(Sketcher.Constraint("Equal", 11, 17))
sketch6.addConstraint(Sketcher.Constraint("Equal", 16, 20))
sketch6.addConstraint(Sketcher.Constraint("Equal", 17, 23))
sketch6.addConstraint(Sketcher.Constraint("PointOnObject", 7, 2, -2))
sketch6.addConstraint(Sketcher.Constraint("PointOnObject", 12, 2, -1))
sketch6.addConstraint(Sketcher.Constraint("Horizontal", 2, 3, 16, 3))
sketch6.addConstraint(Sketcher.Constraint("Horizontal", 5, 3, 17, 3))
sketch6.addConstraint(Sketcher.Constraint("Horizontal", 10, 3, 20, 3))
sketch6.addConstraint(Sketcher.Constraint("Horizontal", 11, 3, 23, 3))
sketch6.addConstraint(Sketcher.Constraint("Horizontal", 7, 2, 18, 2))
sketch6.addConstraint(Sketcher.Constraint("Vertical", 2, 3, 10, 3))
sketch6.addConstraint(Sketcher.Constraint("Vertical", 5, 3, 11, 3))
sketch6.addConstraint(Sketcher.Constraint("Equal", 7, 13))
sketch6.addConstraint(Sketcher.Constraint("Equal", 13, 18))
sketch6.addConstraint(Sketcher.Constraint("Equal", 21, 1))
sketch6.addConstraint(Sketcher.Constraint("Equal", 1, 6))
sketch6.addConstraint(Sketcher.Constraint("Diameter", 5, 3.0))
sketch6.addConstraint(Sketcher.Constraint("Radius", 2, 3.0))
sketch6.addConstraint(Sketcher.Constraint("DistanceX", 0, 1, 0, 2, 10.0))
sketch6.addConstraint(Sketcher.Constraint("DistanceX", -1, 1, 5, 3, 5.0))
sketch6.addConstraint(Sketcher.Constraint("DistanceY", 5, 3, -1, 1, 5.0))
sketch6.addConstraint(Sketcher.Constraint("DistanceY", 10, 3, -1, 1, 93.0))
sketch6.addConstraint(Sketcher.Constraint("DistanceY", 11, 3, -1, 1, 95.0))
sketch6.addConstraint(Sketcher.Constraint("DistanceX", 16, 3, 17, 3, 2.0))
sketch6.addConstraint(Sketcher.Constraint("DistanceX", 20, 3, 23, 3, 2.0))
sketch6.addConstraint(Sketcher.Constraint("DistanceX", -1, 1, 16, 3, 97.4))
sketch6.addConstraint(Sketcher.Constraint("DistanceX", -1, 1, 20, 3, 118.6))
sketch6.setExpression("Constraints[56]", "Params.sketch6_diameter")
sketch6.setExpression("Constraints[57]", "Params.sketch6_radius")
sketch6.setExpression("Constraints[58]", "Params.sketch6_width")
pad6 = body.newObject("PartDesign::Pad", "Pad005")
pad6.Profile = sketch6
pad6.setExpression("Length", "Params.pad6_length")

sketch7 = body.newObject("Sketcher::SketchObject", "Sketch006")
sketch7.AttachmentSupport = (doc.getObject("XZ_Plane"), [""])
sketch7.MapMode = "FlatFace"
sketch7.AttachmentOffset = App.Placement(V(0, 0, -1.5), App.Rotation())
add_polygon(sketch7, [(124.6, -100), (125.6, -100), (125.6, -165), (0, -165), (0, -100), (1, -100), (1, -163.8), (124.6, -163.8)])
sketch7.addConstraint(Sketcher.Constraint("Horizontal", 0))
sketch7.addConstraint(Sketcher.Constraint("Vertical", 1))
sketch7.addConstraint(Sketcher.Constraint("Horizontal", 2))
sketch7.addConstraint(Sketcher.Constraint("Vertical", 3))
sketch7.addConstraint(Sketcher.Constraint("Horizontal", 4))
sketch7.addConstraint(Sketcher.Constraint("Vertical", 5))
sketch7.addConstraint(Sketcher.Constraint("Horizontal", 6))
sketch7.addConstraint(Sketcher.Constraint("Vertical", 7))
sketch7.addConstraint(Sketcher.Constraint("PointOnObject", 2, 2, -2))
sketch7.addConstraint(Sketcher.Constraint("Horizontal", 0, 2, 3, 2))
sketch7.addConstraint(Sketcher.Constraint("Equal", 0, 4))
sketch7.addConstraint(Sketcher.Constraint("DistanceX", 0, 1, 0, 2, 1.0))
sketch7.addConstraint(Sketcher.Constraint("DistanceY", 1, 2, 1, 1, 65.0))
sketch7.addConstraint(Sketcher.Constraint("DistanceX", 2, 2, 2, 1, 125.6))
sketch7.addConstraint(Sketcher.Constraint("DistanceY", 5, 2, 5, 1, 63.8))
sketch7.addConstraint(Sketcher.Constraint("DistanceY", 0, 2, -1, 1, 100.0))
sketch7.setExpression("Constraints[19]", "Params.sketch7_width")
sketch7.setExpression("Constraints[20]", "Params.sketch7_height")
sketch7.setExpression("Constraints[21]", "Params.sketch7_width2")
sketch7.setExpression("Constraints[22]", "Params.sketch7_height2")
pad7 = body.newObject("PartDesign::Pad", "Pad006")
pad7.Profile = sketch7
pad7.setExpression("Length", "Params.pad7_length")
pad7.Reversed = True

sketch8 = body.newObject("Sketcher::SketchObject", "Sketch007")
sketch8.AttachmentSupport = (doc.getObject("XY_Plane"), [""])
sketch8.MapMode = "FlatFace"
sketch8.AttachmentOffset = App.Placement(V(0, 0, -165), App.Rotation())
sketch8.addGeometry(Part.Circle(V(33.8, 26.5, 0), V(0, 0, 1), 1.5), False)
sketch8.addConstraint(Sketcher.Constraint("Diameter", 0, 3.0))
sketch8.addConstraint(Sketcher.Constraint("DistanceX", -1, 1, 0, 3, 33.8))
sketch8.addConstraint(Sketcher.Constraint("DistanceY", -1, 1, 0, 3, 26.5))
sketch8.setExpression("Constraints[0]", "Params.sketch8_diameter")
pocket1 = body.newObject("PartDesign::Pocket", "Pocket")
pocket1.Profile = sketch8
pocket1.Type = "UpToFirst"
pocket1.Reversed = True

sketch9 = body.newObject("Sketcher::SketchObject", "Sketch008")
sketch9.AttachmentSupport = (doc.getObject("XY_Plane"), [""])
sketch9.MapMode = "FlatFace"
sketch9.AttachmentOffset = App.Placement(V(0, 0, -165), App.Rotation())
sketch9.addGeometry(Part.Circle(V(21.8, 26.5, 0), V(0, 0, 1), 1.5), False)
sketch9.addConstraint(Sketcher.Constraint("Diameter", 0, 3.0))
sketch9.addConstraint(Sketcher.Constraint("DistanceX", -1, 1, 0, 3, 21.8))
sketch9.addConstraint(Sketcher.Constraint("DistanceY", -1, 1, 0, 3, 26.5))
sketch9.setExpression("Constraints[0]", "Params.sketch9_diameter")
pocket2 = body.newObject("PartDesign::Pocket", "Pocket001")
pocket2.Profile = sketch9
pocket2.Type = "UpToFirst"
pocket2.Reversed = True

sketch10 = body.newObject("Sketcher::SketchObject", "Sketch009")
sketch10.AttachmentSupport = (doc.getObject("XY_Plane"), [""])
sketch10.MapMode = "FlatFace"
sketch10.AttachmentOffset = App.Placement(V(0, 0, -165), App.Rotation())
sketch10.addGeometry(Part.Circle(V(21.8, 11.5, 0), V(0, 0, 1), 1.5), False)
sketch10.addConstraint(Sketcher.Constraint("Diameter", 0, 3.0))
sketch10.addConstraint(Sketcher.Constraint("DistanceX", -1, 1, 0, 3, 21.8))
sketch10.addConstraint(Sketcher.Constraint("DistanceY", -1, 1, 0, 3, 11.5))
sketch10.setExpression("Constraints[0]", "Params.sketch10_diameter")
pocket3 = body.newObject("PartDesign::Pocket", "Pocket002")
pocket3.Profile = sketch10
pocket3.Type = "UpToFirst"
pocket3.Reversed = True

sketch11 = body.newObject("Sketcher::SketchObject", "Sketch010")
sketch11.AttachmentSupport = (doc.getObject("XY_Plane"), [""])
sketch11.MapMode = "FlatFace"
sketch11.AttachmentOffset = App.Placement(V(0, 0, -165), App.Rotation())
sketch11.addGeometry(Part.Circle(V(33.8, 11.5, 0), V(0, 0, 1), 1.5), False)
sketch11.addConstraint(Sketcher.Constraint("Diameter", 0, 3.0))
sketch11.addConstraint(Sketcher.Constraint("DistanceX", -1, 1, 0, 3, 33.8))
sketch11.addConstraint(Sketcher.Constraint("DistanceY", -1, 1, 0, 3, 11.5))
sketch11.setExpression("Constraints[0]", "Params.sketch11_diameter")
pocket4 = body.newObject("PartDesign::Pocket", "Pocket003")
pocket4.Profile = sketch11
pocket4.Type = "UpToFirst"
pocket4.Reversed = True

sketch12 = body.newObject("Sketcher::SketchObject", "Sketch011")
sketch12.AttachmentSupport = (doc.getObject("XY_Plane"), [""])
sketch12.MapMode = "FlatFace"
sketch12.AttachmentOffset = App.Placement(V(0, 0, -165), App.Rotation())
sketch12.addGeometry(Part.Circle(V(81.3, 11.5, 0), V(0, 0, 1), 1.5), False)
sketch12.addConstraint(Sketcher.Constraint("Diameter", 0, 3.0))
sketch12.addConstraint(Sketcher.Constraint("DistanceX", -1, 1, 0, 3, 81.3))
sketch12.addConstraint(Sketcher.Constraint("DistanceY", -1, 1, 0, 3, 11.5))
sketch12.setExpression("Constraints[0]", "Params.sketch12_diameter")
pocket5 = body.newObject("PartDesign::Pocket", "Pocket004")
pocket5.Profile = sketch12
pocket5.Type = "UpToFirst"
pocket5.Reversed = True

sketch13 = body.newObject("Sketcher::SketchObject", "Sketch012")
sketch13.AttachmentSupport = (doc.getObject("XY_Plane"), [""])
sketch13.MapMode = "FlatFace"
sketch13.AttachmentOffset = App.Placement(V(0, 0, -165), App.Rotation())
sketch13.addGeometry(Part.Circle(V(93.3, 11.5, 0), V(0, 0, 1), 1.5), False)
sketch13.addConstraint(Sketcher.Constraint("Diameter", 0, 3.0))
sketch13.addConstraint(Sketcher.Constraint("DistanceX", -1, 1, 0, 3, 93.3))
sketch13.addConstraint(Sketcher.Constraint("DistanceY", -1, 1, 0, 3, 11.5))
sketch13.setExpression("Constraints[0]", "Params.sketch13_diameter")
pocket6 = body.newObject("PartDesign::Pocket", "Pocket005")
pocket6.Profile = sketch13
pocket6.Type = "UpToFirst"
pocket6.Reversed = True

sketch14 = body.newObject("Sketcher::SketchObject", "Sketch013")
sketch14.AttachmentSupport = (doc.getObject("XY_Plane"), [""])
sketch14.MapMode = "FlatFace"
sketch14.AttachmentOffset = App.Placement(V(0, 0, -165), App.Rotation())
sketch14.addGeometry(Part.Circle(V(93.3, 26.5, 0), V(0, 0, 1), 1.5), False)
sketch14.addConstraint(Sketcher.Constraint("Diameter", 0, 3.0))
sketch14.addConstraint(Sketcher.Constraint("DistanceX", -1, 1, 0, 3, 93.3))
sketch14.addConstraint(Sketcher.Constraint("DistanceY", -1, 1, 0, 3, 26.5))
sketch14.setExpression("Constraints[0]", "Params.sketch14_diameter")
pocket7 = body.newObject("PartDesign::Pocket", "Pocket006")
pocket7.Profile = sketch14
pocket7.Type = "UpToFirst"
pocket7.Reversed = True

sketch15 = body.newObject("Sketcher::SketchObject", "Sketch014")
sketch15.AttachmentSupport = (doc.getObject("XY_Plane"), [""])
sketch15.MapMode = "FlatFace"
sketch15.AttachmentOffset = App.Placement(V(0, 0, -165), App.Rotation())
sketch15.addGeometry(Part.Circle(V(81.3, 26.5, 0), V(0, 0, 1), 1.5), False)
sketch15.addConstraint(Sketcher.Constraint("Diameter", 0, 3.0))
sketch15.addConstraint(Sketcher.Constraint("DistanceX", -1, 1, 0, 3, 81.3))
sketch15.addConstraint(Sketcher.Constraint("DistanceY", -1, 1, 0, 3, 26.5))
sketch15.setExpression("Constraints[0]", "Params.sketch15_diameter")
pocket8 = body.newObject("PartDesign::Pocket", "Pocket007")
pocket8.Profile = sketch15
pocket8.Type = "UpToFirst"
pocket8.Reversed = True

sketch16 = body.newObject("Sketcher::SketchObject", "Sketch015")
sketch16.AttachmentSupport = (doc.getObject("YZ_Plane"), [""])
sketch16.MapMode = "FlatFace"
sketch16.AttachmentOffset = App.Placement(V(0, 0, 125.6), App.Rotation())
sketch16.addGeometry(Part.Circle(V(42.5, -96, 0), V(0, 0, 1), 1.5), False)
sketch16.addGeometry(Part.Circle(V(42.5, -6, 0), V(0, 0, 1), 1.5), False)
sketch16.addConstraint(Sketcher.Constraint("Equal", 0, 1))
sketch16.addConstraint(Sketcher.Constraint("Vertical", 0, 3, 1, 3))
sketch16.addConstraint(Sketcher.Constraint("Diameter", 0, 3.0))
sketch16.addConstraint(Sketcher.Constraint("DistanceY", 0, 3, -1, 1, 96.0))
sketch16.addConstraint(Sketcher.Constraint("DistanceY", 1, 3, -1, 1, 6.0))
sketch16.addConstraint(Sketcher.Constraint("DistanceX", -1, 1, 0, 3, 42.5))
sketch16.setExpression("Constraints[2]", "Params.sketch16_diameter")
pocket9 = body.newObject("PartDesign::Pocket", "Pocket008")
pocket9.Profile = sketch16
pocket9.Type = "ThroughAll"

sketch17 = body.newObject("Sketcher::SketchObject", "Sketch016")
sketch17.AttachmentSupport = (doc.getObject("YZ_Plane"), [""])
sketch17.MapMode = "FlatFace"
sketch17.AttachmentOffset = App.Placement(V(0, 0, 125.6), App.Rotation())
sketch17.addGeometry(Part.Circle(V(26.5, -160, 0), V(0, 0, 1), 1.5), False)
sketch17.addGeometry(Part.Circle(V(26.5, -106, 0), V(0, 0, 1), 1.5), False)
sketch17.addConstraint(Sketcher.Constraint("Equal", 0, 1))
sketch17.addConstraint(Sketcher.Constraint("Vertical", 0, 3, 1, 3))
sketch17.addConstraint(Sketcher.Constraint("Diameter", 0, 3.0))
sketch17.addConstraint(Sketcher.Constraint("DistanceY", 0, 3, -1, 1, 160.0))
sketch17.addConstraint(Sketcher.Constraint("DistanceY", 1, 3, -1, 1, 106.0))
sketch17.addConstraint(Sketcher.Constraint("DistanceX", -1, 1, 0, 3, 26.5))
sketch17.setExpression("Constraints[2]", "Params.sketch17_diameter")
pocket10 = body.newObject("PartDesign::Pocket", "Pocket009")
pocket10.Profile = sketch17
pocket10.Type = "ThroughAll"

doc.recompute()
